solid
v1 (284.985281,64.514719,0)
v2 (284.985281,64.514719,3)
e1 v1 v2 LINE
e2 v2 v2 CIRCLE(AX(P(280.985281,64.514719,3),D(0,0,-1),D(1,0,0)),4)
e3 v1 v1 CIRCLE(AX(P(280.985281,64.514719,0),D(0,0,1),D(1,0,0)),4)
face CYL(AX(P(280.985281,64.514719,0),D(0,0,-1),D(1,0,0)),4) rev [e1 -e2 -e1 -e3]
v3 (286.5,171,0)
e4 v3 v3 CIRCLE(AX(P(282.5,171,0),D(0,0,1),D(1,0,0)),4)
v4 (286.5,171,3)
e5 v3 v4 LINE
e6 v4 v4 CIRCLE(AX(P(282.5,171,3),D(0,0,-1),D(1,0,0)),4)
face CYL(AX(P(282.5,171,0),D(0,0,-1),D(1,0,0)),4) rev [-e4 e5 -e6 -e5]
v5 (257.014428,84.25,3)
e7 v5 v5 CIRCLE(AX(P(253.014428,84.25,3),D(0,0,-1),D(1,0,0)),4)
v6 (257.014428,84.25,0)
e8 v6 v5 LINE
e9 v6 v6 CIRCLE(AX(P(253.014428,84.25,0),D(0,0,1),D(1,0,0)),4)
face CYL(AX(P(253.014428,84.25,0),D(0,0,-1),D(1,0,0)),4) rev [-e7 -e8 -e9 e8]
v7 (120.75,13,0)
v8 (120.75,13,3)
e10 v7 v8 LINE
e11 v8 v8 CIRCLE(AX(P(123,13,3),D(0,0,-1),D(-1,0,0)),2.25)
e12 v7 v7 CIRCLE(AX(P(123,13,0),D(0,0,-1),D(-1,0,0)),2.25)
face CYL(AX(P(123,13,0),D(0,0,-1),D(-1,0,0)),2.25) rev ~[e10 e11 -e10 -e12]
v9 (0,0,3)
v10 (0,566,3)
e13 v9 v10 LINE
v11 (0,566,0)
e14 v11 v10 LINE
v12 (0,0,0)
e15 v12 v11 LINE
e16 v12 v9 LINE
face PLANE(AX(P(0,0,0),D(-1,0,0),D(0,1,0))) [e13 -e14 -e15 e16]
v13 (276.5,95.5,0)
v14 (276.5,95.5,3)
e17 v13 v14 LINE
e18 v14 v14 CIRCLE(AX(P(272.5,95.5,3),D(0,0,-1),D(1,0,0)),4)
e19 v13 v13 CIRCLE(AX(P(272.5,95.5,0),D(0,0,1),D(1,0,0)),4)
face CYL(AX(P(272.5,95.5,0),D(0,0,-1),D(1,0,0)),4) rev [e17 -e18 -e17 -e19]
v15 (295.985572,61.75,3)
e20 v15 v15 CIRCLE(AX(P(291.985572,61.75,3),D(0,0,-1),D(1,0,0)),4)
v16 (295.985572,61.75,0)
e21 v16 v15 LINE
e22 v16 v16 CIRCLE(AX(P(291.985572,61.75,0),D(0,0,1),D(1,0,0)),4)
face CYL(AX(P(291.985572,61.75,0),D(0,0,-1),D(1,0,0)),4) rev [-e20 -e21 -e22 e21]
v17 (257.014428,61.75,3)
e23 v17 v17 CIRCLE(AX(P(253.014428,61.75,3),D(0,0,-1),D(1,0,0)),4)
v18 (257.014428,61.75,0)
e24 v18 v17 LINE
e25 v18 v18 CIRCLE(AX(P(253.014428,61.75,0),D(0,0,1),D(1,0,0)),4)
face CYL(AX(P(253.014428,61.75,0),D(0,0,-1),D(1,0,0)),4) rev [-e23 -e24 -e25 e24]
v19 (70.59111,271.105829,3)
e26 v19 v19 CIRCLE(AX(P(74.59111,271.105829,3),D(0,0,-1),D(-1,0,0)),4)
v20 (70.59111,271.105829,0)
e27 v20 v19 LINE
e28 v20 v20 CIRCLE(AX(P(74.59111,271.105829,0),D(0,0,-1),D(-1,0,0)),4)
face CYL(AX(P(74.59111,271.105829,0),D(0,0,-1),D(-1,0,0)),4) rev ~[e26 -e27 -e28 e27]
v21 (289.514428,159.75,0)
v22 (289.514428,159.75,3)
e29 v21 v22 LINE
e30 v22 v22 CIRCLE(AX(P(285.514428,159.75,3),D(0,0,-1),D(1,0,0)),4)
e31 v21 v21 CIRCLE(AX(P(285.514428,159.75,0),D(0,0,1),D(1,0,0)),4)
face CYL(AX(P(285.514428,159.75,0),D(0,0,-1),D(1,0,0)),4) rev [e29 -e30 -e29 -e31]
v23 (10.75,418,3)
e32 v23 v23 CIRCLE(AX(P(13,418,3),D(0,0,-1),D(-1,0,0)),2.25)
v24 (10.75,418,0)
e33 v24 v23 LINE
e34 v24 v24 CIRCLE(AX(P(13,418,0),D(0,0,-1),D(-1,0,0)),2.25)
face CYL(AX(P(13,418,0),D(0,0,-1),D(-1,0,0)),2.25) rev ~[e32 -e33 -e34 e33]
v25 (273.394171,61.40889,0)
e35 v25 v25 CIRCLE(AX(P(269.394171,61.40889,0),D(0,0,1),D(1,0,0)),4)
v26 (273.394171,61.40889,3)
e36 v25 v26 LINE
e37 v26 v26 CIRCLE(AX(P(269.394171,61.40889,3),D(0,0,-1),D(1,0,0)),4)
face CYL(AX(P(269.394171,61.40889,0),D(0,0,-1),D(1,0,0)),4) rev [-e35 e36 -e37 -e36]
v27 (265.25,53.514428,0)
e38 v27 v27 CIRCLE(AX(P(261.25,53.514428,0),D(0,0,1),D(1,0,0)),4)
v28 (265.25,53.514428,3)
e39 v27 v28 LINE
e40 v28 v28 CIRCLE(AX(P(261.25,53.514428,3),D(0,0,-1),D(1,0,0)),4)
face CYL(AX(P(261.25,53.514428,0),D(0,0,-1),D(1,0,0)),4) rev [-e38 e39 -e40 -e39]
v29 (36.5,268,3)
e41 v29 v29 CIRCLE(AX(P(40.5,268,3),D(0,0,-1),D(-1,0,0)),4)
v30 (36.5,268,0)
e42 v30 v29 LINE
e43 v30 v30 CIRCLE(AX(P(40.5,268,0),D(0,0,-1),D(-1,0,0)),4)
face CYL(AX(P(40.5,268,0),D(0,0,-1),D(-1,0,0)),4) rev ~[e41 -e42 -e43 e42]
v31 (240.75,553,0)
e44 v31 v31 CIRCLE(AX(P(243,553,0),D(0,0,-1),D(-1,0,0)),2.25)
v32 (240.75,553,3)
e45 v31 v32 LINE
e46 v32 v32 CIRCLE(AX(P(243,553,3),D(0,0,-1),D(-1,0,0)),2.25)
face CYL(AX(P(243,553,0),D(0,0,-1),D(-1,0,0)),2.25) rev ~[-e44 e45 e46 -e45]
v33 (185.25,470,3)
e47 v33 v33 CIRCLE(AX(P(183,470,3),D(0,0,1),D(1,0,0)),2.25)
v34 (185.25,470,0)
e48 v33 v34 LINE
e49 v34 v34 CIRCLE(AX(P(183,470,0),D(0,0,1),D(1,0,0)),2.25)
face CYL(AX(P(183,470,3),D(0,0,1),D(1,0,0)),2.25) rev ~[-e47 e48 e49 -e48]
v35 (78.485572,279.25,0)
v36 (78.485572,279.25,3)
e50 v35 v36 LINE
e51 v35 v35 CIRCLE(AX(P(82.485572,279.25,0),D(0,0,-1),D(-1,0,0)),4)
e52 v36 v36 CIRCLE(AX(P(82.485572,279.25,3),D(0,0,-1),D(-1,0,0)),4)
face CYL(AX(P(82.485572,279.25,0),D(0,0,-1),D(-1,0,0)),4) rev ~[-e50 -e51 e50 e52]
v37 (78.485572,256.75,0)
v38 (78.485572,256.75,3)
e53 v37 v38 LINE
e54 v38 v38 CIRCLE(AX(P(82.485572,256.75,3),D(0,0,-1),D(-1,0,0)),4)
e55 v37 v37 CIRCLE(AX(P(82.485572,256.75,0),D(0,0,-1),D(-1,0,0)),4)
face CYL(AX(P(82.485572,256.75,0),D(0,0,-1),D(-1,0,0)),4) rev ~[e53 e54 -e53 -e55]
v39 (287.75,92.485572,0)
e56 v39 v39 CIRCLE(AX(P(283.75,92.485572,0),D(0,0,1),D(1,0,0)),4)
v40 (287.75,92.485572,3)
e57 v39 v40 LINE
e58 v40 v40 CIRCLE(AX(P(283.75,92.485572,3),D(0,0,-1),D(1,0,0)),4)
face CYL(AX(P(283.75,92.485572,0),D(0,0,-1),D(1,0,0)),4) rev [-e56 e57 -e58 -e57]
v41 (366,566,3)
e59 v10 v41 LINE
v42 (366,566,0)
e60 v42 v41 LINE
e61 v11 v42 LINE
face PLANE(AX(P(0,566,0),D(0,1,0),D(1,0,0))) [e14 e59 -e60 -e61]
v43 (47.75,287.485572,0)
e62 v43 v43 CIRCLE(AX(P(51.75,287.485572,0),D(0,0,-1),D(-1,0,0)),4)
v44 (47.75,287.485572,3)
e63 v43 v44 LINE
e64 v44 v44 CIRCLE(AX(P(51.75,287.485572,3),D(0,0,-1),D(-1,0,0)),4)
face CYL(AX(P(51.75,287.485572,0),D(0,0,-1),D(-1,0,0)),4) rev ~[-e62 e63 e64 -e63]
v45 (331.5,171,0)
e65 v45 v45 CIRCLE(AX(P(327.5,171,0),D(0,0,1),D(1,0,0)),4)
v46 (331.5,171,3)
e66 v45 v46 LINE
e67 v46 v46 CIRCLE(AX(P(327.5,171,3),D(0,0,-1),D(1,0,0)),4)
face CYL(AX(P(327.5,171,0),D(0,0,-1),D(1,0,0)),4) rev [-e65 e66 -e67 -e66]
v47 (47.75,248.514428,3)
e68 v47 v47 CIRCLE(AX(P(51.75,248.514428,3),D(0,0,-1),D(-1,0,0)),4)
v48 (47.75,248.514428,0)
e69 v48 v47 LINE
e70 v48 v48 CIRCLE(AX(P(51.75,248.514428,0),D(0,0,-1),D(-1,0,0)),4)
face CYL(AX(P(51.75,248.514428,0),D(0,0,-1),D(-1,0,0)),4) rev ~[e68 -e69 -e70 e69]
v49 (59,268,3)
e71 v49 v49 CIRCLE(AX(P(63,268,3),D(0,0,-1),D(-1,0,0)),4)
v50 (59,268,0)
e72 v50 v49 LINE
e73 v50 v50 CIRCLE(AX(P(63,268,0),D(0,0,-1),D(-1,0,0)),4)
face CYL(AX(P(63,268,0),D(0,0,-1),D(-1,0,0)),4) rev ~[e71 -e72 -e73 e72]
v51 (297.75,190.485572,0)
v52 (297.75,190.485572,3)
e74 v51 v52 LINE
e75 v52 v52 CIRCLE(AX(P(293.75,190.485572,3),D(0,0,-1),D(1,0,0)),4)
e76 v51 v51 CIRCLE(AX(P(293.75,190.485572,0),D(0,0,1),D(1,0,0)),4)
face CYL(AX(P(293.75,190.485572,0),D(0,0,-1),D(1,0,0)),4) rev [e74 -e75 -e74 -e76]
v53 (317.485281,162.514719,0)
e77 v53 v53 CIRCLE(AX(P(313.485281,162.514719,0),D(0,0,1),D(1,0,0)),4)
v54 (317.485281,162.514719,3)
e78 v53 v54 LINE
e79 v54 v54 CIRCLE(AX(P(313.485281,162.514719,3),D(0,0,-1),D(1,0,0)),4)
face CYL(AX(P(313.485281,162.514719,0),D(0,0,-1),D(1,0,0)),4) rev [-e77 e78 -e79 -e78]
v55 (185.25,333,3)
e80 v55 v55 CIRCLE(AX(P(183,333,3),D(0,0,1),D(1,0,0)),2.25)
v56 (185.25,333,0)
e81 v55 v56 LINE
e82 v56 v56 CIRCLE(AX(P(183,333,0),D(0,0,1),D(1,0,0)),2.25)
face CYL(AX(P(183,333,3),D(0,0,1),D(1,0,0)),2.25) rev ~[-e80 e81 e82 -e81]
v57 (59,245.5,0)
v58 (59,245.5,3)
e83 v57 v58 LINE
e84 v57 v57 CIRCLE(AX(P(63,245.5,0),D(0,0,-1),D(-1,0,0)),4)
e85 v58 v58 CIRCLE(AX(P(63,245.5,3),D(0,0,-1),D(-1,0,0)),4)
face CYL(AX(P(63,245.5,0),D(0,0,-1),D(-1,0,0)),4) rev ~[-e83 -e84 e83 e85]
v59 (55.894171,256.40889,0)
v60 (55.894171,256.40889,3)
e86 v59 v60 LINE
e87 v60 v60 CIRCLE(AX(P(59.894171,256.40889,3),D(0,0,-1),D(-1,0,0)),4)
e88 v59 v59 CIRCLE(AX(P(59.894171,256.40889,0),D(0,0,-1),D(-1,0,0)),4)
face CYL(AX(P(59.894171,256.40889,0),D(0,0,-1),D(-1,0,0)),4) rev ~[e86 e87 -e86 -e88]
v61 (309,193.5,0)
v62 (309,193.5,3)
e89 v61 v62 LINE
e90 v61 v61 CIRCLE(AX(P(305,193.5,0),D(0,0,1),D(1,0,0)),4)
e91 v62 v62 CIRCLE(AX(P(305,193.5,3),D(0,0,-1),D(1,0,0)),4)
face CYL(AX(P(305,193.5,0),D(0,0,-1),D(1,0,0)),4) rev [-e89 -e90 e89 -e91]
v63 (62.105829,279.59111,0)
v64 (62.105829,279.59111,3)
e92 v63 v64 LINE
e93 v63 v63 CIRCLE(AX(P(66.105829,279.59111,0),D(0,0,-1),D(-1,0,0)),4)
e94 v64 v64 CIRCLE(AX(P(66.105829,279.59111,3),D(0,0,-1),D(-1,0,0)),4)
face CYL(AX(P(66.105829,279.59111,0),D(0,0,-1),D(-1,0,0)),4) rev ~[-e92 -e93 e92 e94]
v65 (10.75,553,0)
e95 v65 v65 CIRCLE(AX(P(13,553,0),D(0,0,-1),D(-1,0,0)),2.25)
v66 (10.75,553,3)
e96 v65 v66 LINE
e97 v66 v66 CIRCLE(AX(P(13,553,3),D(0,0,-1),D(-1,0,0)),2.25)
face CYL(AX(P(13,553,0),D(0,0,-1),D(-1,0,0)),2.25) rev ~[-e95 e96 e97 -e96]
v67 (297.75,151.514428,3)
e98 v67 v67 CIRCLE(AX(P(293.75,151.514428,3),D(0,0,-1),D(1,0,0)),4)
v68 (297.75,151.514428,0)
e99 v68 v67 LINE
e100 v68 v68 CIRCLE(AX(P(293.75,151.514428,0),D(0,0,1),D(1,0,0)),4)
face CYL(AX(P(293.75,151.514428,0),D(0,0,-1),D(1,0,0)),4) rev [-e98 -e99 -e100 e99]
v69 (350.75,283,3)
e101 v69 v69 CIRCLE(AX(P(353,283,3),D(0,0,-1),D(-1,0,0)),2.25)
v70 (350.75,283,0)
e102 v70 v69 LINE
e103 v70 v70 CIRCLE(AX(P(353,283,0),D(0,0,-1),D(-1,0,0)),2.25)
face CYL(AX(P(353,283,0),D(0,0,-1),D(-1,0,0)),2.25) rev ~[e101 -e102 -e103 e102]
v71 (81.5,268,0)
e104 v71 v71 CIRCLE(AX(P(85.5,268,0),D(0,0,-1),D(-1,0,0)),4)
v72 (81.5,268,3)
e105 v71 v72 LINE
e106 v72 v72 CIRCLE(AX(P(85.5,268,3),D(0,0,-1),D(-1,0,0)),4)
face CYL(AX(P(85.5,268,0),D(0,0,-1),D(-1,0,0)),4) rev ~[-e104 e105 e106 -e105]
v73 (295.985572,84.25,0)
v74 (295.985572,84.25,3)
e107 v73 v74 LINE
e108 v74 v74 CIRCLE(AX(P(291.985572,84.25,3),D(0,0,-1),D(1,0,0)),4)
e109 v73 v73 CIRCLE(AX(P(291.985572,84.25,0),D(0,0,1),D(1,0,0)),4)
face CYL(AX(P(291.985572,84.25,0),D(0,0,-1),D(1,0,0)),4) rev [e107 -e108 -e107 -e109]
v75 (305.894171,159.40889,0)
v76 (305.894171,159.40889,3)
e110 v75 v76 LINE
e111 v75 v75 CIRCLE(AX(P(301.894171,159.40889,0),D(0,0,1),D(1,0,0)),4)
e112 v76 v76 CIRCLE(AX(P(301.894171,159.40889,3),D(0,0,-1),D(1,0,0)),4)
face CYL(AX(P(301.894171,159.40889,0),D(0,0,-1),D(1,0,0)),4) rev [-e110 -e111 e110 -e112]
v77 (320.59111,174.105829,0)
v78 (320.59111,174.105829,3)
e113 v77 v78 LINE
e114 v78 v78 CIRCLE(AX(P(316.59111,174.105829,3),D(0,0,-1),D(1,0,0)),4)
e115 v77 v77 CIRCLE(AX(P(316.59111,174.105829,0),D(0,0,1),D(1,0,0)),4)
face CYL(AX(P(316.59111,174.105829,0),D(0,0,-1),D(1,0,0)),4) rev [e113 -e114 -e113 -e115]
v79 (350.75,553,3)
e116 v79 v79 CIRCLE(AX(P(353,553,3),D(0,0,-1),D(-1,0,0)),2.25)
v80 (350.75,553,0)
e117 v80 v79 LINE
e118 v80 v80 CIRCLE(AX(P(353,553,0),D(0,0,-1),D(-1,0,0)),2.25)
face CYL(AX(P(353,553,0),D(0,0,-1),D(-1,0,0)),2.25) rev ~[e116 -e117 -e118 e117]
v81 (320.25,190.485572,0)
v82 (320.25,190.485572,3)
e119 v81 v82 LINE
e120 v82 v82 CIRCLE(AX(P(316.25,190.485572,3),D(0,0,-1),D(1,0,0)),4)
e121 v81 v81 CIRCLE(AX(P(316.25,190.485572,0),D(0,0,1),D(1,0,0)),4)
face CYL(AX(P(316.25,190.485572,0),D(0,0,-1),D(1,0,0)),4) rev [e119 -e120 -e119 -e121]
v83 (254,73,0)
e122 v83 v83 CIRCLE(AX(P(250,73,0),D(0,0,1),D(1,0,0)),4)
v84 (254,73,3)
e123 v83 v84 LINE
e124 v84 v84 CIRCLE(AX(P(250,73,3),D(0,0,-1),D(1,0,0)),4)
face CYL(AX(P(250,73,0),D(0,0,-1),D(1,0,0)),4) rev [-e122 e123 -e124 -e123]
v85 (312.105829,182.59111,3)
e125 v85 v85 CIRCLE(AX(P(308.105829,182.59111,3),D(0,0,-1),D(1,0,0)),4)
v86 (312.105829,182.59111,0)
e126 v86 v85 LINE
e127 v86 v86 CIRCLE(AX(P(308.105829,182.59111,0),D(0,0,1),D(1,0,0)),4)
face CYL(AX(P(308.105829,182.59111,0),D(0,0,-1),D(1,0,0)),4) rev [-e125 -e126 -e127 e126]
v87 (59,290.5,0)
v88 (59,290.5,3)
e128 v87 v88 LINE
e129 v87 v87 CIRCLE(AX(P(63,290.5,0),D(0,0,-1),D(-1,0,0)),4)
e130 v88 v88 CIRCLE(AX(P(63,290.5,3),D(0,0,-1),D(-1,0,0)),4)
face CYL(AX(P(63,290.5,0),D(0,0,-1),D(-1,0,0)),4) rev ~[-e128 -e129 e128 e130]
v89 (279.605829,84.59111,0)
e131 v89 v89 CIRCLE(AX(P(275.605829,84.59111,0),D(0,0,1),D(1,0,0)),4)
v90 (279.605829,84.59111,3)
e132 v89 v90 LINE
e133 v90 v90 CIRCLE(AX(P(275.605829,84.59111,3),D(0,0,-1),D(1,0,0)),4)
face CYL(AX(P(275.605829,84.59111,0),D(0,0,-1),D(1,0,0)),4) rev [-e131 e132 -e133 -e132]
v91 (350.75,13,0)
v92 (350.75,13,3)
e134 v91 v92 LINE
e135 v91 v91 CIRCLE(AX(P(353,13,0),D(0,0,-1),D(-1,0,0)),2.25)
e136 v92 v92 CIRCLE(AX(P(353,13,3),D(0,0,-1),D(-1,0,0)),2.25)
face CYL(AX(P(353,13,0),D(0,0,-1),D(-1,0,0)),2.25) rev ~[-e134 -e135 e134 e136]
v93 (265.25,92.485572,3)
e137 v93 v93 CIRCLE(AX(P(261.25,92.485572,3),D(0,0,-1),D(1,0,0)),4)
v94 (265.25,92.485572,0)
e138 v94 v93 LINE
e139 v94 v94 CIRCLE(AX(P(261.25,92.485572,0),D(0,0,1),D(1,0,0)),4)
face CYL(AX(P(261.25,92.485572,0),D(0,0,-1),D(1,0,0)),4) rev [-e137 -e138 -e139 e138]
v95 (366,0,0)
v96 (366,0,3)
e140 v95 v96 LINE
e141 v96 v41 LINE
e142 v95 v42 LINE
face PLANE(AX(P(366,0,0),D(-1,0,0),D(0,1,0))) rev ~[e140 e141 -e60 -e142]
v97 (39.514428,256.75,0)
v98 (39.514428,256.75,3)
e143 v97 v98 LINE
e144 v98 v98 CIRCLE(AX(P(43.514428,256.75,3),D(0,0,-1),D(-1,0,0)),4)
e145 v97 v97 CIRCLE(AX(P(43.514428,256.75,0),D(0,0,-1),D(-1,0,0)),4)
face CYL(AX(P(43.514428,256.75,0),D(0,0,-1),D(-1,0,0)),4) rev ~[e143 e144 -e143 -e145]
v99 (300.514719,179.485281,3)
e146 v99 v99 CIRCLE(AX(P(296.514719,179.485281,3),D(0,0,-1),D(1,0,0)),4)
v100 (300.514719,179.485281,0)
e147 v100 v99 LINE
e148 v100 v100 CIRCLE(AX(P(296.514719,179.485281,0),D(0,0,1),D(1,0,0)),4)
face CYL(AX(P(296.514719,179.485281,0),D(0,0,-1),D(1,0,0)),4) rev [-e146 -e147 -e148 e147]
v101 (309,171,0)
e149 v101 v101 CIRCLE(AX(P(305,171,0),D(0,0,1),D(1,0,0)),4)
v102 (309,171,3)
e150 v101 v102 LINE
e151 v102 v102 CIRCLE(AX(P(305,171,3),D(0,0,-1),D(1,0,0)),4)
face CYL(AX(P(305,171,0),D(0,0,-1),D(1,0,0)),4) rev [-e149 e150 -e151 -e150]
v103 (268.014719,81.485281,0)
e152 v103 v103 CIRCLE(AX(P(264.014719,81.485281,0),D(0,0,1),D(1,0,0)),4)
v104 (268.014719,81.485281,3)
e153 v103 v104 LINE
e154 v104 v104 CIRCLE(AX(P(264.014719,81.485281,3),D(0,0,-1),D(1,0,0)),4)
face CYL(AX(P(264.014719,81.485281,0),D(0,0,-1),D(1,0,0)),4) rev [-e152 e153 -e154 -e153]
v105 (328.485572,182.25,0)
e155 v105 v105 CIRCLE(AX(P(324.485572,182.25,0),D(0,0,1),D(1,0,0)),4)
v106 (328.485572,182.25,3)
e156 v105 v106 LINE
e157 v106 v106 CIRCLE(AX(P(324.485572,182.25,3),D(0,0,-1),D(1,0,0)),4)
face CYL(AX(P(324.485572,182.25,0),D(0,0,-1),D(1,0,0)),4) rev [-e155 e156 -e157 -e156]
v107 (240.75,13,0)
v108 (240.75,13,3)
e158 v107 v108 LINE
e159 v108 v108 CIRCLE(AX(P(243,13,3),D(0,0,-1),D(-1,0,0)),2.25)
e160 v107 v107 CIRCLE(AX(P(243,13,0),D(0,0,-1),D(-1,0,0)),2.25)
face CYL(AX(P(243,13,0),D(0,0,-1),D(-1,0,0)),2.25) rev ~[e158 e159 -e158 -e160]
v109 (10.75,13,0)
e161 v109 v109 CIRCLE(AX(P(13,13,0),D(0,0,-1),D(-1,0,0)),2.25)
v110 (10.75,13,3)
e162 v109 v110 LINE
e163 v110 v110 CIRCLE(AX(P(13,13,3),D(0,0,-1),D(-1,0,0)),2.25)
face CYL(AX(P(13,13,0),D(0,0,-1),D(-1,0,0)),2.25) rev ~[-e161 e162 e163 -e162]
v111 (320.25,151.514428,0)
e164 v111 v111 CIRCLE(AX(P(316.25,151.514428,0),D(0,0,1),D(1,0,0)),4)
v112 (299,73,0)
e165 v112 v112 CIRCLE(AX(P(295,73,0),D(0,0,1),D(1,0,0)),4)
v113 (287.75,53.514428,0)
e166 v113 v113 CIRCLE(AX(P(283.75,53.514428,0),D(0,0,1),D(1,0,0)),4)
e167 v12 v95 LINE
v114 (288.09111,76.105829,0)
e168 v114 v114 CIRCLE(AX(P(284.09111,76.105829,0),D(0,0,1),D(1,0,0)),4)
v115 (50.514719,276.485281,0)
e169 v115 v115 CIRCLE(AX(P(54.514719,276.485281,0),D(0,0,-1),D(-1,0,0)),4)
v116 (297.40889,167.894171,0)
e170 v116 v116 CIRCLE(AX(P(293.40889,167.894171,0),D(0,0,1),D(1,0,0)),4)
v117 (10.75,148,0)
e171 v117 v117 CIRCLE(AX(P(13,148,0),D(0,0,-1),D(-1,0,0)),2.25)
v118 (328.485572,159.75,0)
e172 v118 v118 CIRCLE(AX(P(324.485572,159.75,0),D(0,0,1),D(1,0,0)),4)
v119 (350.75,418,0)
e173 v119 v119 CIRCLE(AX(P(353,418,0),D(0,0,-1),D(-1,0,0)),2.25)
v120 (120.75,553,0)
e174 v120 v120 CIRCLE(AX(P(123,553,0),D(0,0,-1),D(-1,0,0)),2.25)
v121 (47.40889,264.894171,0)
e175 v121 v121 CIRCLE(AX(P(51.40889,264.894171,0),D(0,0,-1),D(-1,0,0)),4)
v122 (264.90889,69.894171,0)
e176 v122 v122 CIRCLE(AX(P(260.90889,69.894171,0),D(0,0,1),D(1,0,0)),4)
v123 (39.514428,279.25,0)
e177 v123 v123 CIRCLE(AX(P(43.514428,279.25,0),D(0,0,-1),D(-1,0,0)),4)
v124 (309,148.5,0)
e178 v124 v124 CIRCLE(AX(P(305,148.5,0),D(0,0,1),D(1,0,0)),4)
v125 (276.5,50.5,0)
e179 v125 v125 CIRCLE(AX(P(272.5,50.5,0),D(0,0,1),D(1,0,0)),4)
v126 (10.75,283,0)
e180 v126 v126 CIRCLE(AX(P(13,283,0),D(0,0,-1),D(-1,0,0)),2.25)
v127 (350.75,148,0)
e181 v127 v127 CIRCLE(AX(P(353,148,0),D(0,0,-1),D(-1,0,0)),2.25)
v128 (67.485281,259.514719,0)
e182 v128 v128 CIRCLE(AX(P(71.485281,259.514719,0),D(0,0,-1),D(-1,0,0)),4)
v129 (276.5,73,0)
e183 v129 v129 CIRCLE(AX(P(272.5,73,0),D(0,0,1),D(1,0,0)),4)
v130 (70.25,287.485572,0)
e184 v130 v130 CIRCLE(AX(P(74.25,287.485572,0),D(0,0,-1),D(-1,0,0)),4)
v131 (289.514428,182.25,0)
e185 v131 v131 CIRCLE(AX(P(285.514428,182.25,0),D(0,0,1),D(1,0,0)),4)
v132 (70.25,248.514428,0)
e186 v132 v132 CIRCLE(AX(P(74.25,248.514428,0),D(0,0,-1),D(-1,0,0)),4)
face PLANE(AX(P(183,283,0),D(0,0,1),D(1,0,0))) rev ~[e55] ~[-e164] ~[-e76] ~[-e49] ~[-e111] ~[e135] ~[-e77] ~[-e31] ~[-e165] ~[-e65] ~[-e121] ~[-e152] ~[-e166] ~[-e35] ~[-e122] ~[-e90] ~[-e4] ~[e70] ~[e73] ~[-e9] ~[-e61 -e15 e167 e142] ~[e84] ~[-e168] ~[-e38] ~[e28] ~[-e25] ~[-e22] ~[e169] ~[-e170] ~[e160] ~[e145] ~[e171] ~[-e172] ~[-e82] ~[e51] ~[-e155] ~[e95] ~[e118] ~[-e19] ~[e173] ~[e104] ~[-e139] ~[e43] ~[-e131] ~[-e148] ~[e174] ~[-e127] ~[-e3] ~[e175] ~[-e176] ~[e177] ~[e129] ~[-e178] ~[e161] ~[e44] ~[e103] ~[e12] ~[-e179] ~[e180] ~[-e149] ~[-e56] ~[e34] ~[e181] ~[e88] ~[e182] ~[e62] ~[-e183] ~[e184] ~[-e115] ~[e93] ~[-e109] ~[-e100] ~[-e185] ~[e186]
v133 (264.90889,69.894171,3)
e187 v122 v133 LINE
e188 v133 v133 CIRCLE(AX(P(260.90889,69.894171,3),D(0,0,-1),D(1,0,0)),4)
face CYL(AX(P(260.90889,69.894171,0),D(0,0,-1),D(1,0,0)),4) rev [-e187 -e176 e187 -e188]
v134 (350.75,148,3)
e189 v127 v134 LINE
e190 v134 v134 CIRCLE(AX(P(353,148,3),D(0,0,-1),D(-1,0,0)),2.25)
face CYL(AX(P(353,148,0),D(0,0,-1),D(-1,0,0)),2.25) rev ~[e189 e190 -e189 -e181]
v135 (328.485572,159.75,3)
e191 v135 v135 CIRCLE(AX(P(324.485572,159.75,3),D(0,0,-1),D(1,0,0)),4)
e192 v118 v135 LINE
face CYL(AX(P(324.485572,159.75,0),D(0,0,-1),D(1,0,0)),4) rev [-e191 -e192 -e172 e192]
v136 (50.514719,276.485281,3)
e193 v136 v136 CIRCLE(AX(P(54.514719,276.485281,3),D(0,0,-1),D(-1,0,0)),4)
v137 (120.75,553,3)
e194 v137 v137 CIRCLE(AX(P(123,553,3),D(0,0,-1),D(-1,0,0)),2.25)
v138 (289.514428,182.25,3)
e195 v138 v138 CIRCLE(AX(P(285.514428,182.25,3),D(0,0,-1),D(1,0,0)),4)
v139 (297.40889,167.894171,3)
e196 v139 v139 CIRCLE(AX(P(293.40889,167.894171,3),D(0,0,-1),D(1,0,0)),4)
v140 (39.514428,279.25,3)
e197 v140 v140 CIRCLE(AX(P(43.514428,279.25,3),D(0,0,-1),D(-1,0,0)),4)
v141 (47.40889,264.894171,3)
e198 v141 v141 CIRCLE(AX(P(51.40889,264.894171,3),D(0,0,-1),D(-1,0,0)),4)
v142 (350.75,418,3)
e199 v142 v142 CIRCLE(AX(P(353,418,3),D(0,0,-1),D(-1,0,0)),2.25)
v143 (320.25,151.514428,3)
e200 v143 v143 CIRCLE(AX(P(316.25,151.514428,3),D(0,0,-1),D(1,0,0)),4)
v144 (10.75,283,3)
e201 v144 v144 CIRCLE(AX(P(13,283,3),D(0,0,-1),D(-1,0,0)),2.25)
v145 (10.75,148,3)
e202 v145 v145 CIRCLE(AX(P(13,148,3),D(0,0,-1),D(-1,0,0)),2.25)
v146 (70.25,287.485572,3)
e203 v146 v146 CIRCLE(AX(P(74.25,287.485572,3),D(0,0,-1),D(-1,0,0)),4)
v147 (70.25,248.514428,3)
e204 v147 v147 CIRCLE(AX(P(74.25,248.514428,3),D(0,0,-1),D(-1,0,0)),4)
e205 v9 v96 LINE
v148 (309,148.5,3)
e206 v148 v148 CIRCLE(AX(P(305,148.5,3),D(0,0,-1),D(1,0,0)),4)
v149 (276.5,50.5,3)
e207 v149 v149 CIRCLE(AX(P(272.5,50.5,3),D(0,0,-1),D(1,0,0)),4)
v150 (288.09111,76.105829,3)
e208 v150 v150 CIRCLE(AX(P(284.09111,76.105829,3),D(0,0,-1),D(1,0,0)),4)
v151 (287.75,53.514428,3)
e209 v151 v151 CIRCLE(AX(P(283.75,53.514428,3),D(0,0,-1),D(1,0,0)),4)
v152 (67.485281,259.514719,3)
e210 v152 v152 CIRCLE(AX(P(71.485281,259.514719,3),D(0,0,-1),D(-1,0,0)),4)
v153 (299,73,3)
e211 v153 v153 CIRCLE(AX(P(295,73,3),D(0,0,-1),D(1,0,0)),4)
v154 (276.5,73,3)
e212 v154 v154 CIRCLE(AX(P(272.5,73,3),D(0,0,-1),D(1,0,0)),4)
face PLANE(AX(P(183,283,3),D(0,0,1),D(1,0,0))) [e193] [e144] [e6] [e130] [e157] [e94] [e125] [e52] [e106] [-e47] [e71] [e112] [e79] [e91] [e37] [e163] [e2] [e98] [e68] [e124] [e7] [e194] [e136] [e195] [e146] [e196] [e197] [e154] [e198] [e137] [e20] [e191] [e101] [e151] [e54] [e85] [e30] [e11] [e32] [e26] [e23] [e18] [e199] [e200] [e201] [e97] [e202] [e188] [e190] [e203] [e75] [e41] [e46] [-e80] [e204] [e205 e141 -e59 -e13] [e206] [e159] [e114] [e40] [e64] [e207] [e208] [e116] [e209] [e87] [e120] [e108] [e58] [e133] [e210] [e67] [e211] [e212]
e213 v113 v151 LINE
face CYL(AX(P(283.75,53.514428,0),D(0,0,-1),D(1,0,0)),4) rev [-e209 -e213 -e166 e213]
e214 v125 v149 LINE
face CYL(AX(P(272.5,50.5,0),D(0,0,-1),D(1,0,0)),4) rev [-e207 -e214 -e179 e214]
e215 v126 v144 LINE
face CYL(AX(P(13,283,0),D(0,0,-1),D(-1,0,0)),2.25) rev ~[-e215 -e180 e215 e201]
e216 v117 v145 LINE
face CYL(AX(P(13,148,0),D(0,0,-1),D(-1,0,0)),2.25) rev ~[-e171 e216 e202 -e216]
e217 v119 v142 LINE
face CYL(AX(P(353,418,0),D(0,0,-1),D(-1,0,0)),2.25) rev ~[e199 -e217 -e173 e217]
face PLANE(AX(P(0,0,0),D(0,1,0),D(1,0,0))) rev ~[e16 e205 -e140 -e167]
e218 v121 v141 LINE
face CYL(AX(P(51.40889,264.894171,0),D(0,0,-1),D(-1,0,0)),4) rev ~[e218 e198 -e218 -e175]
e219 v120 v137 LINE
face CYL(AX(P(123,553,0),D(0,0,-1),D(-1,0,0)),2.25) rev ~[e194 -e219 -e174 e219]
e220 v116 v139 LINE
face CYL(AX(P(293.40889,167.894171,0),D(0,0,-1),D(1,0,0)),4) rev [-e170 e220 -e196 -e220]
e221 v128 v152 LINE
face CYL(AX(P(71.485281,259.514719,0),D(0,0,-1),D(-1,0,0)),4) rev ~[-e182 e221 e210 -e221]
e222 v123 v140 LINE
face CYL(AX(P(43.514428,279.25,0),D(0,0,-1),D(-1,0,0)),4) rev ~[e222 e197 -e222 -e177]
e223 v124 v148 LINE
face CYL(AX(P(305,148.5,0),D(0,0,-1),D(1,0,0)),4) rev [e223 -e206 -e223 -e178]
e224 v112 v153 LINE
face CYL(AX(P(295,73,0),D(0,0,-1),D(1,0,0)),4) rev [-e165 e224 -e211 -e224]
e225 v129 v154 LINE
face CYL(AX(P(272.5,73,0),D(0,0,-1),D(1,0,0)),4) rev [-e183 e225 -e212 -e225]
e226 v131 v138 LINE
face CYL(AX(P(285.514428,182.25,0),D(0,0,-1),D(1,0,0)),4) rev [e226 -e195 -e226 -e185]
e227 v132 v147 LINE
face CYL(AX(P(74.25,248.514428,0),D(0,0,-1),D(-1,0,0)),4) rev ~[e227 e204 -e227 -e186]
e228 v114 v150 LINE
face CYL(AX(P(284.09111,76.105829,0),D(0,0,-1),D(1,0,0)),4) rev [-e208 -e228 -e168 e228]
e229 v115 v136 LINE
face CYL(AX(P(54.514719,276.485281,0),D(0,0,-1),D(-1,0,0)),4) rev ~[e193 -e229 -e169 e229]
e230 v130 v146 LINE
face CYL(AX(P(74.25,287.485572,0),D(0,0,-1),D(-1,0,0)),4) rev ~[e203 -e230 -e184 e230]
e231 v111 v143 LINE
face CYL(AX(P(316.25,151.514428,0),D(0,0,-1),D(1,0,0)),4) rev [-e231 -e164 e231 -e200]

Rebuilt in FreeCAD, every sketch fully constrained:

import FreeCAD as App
import Part
import Sketcher
Q = App.Units.Quantity

doc = App.newDocument("Part")
body = doc.addObject("PartDesign::Body", "Body")

# Sketch on XY plane
sketch1 = body.newObject("Sketcher::SketchObject", "Sketch")
sketch1.AttachmentSupport = (doc.getObject("XY_Plane"), [""])
sketch1.MapMode = "FlatFace"
sketch1.addGeometry([
    Part.LineSegment(App.Vector(0, 566, 0), App.Vector(0, 0, 0)),
    Part.LineSegment(App.Vector(0, 0, 0), App.Vector(366, 0, 0)),
    Part.LineSegment(App.Vector(366, 0, 0), App.Vector(366, 566, 0)),
    Part.LineSegment(App.Vector(366, 566, 0), App.Vector(0, 566, 0)),
], False)
sketch1.addConstraint([
    Sketcher.Constraint("Coincident", 0, 2, 1, 1),
    Sketcher.Constraint("Coincident", 1, 2, 2, 1),
    Sketcher.Constraint("Coincident", 2, 2, 3, 1),
    Sketcher.Constraint("Coincident", 3, 2, 0, 1),
    Sketcher.Constraint("Vertical", 0),
    Sketcher.Constraint("Horizontal", 1),
    Sketcher.Constraint("Vertical", 2),
    Sketcher.Constraint("Horizontal", 3),
    Sketcher.Constraint("Coincident", 0, 2, -1, 1),
    Sketcher.Constraint("DistanceX", 1, 1, 1, 2, Q("366 mm")),
    Sketcher.Constraint("DistanceY", 0, 2, 0, 1, Q("566 mm")),
])
pad1 = body.newObject("PartDesign::Pad", "Pad")
pad1.Profile = sketch1
pad1.Length = 3

# Sketch on XY plane
sketch2 = body.newObject("Sketcher::SketchObject", "Sketch001")
sketch2.AttachmentSupport = (doc.getObject("XY_Plane"), [""])
sketch2.MapMode = "FlatFace"
sketch2.addGeometry([
    Part.Circle(App.Vector(353, 553, 0), App.Vector(0, 0, 1), 2.2),  # 0
    Part.Circle(App.Vector(13, 553, 0), App.Vector(0, 0, 1), 2.2),  # 1
    Part.Circle(App.Vector(243, 553, 0), App.Vector(0, 0, 1), 2.2),  # 2
    Part.Circle(App.Vector(123, 553, 0), App.Vector(0, 0, 1), 2.2),  # 3
    Part.Circle(App.Vector(353, 418, 0), App.Vector(0, 0, 1), 2.2),  # 4
    Part.Circle(App.Vector(353, 283, 0), App.Vector(0, 0, 1), 2.2),  # 5
    Part.Circle(App.Vector(353, 148, 0), App.Vector(0, 0, 1), 2.2),  # 6
    Part.Circle(App.Vector(353, 13, 0), App.Vector(0, 0, 1), 2.2),  # 7
    Part.Circle(App.Vector(123, 13, 0), App.Vector(0, 0, 1), 2.2),  # 8
    Part.Circle(App.Vector(243, 13, 0), App.Vector(0, 0, 1), 2.2),  # 9
    Part.Circle(App.Vector(13, 418, 0), App.Vector(0, 0, 1), 2.2),  # 10
    Part.Circle(App.Vector(13, 283, 0), App.Vector(0, 0, 1), 2.2),  # 11
    Part.Circle(App.Vector(13, 148, 0), App.Vector(0, 0, 1), 2.2),  # 12
    Part.Circle(App.Vector(13, 13, 0), App.Vector(0, 0, 1), 2.2),  # 13
], False)
sketch2.addConstraint([
    Sketcher.Constraint("Equal", 0, 1),
    Sketcher.Constraint("Equal", 1, 2),
    Sketcher.Constraint("Equal", 2, 3),
    Sketcher.Constraint("Equal", 3, 4),
    Sketcher.Constraint("Equal", 4, 5),
    Sketcher.Constraint("Equal", 5, 6),
    Sketcher.Constraint("Equal", 6, 7),
    Sketcher.Constraint("Equal", 7, 8),
    Sketcher.Constraint("Equal", 8, 9),
    Sketcher.Constraint("Equal", 9, 10),
    Sketcher.Constraint("Equal", 10, 11),
    Sketcher.Constraint("Equal", 11, 12),
    Sketcher.Constraint("Equal", 12, 13),
    Sketcher.Constraint("Horizontal", 0, 3, 1, 3),
    Sketcher.Constraint("Horizontal", 1, 3, 2, 3),
    Sketcher.Constraint("Horizontal", 2, 3, 3, 3),
    Sketcher.Constraint("Horizontal", 7, 3, 8, 3),
    Sketcher.Constraint("Horizontal", 8, 3, 9, 3),
    Sketcher.Constraint("Horizontal", 4, 3, 10, 3),
    Sketcher.Constraint("Horizontal", 5, 3, 11, 3),
    Sketcher.Constraint("Horizontal", 6, 3, 12, 3),
    Sketcher.Constraint("Horizontal", 9, 3, 13, 3),
    Sketcher.Constraint("Vertical", 0, 3, 4, 3),
    Sketcher.Constraint("Vertical", 4, 3, 5, 3),
    Sketcher.Constraint("Vertical", 5, 3, 6, 3),
    Sketcher.Constraint("Vertical", 6, 3, 7, 3),
    Sketcher.Constraint("Vertical", 3, 3, 8, 3),
    Sketcher.Constraint("Vertical", 2, 3, 9, 3),
    Sketcher.Constraint("Vertical", 1, 3, 10, 3),
    Sketcher.Constraint("Vertical", 10, 3, 11, 3),
    Sketcher.Constraint("Vertical", 11, 3, 12, 3),
    Sketcher.Constraint("Vertical", 12, 3, 13, 3),
    Sketcher.Constraint("Diameter", 0, Q("4.5 mm")),
    Sketcher.Constraint("DistanceX", -1, 1, 0, 3, Q("353 mm")),
    Sketcher.Constraint("DistanceY", -1, 1, 0, 3, Q("553 mm")),
    Sketcher.Constraint("DistanceX", -1, 1, 1, 3, Q("13 mm")),
    Sketcher.Constraint("DistanceX", -1, 1, 2, 3, Q("243 mm")),
    Sketcher.Constraint("DistanceX", -1, 1, 3, 3, Q("123 mm")),
    Sketcher.Constraint("DistanceY", -1, 1, 4, 3, Q("418 mm")),
    Sketcher.Constraint("DistanceY", -1, 1, 5, 3, Q("283 mm")),
    Sketcher.Constraint("DistanceY", -1, 1, 6, 3, Q("148 mm")),
    Sketcher.Constraint("DistanceY", -1, 1, 7, 3, Q("13 mm")),
])
pocket1 = body.newObject("PartDesign::Pocket", "Pocket")
pocket1.Profile = sketch2
pocket1.Type = "ThroughAll"
pocket1.Reversed = True

# Sketch on XY plane
sketch3 = body.newObject("Sketcher::SketchObject", "Sketch002")
sketch3.AttachmentSupport = (doc.getObject("XY_Plane"), [""])
sketch3.MapMode = "FlatFace"
sketch3.addGeometry([
    Part.Circle(App.Vector(305, 148.5, 0), App.Vector(0, 0, 1), 4),  # 0
    Part.Circle(App.Vector(313.5, 162.5, 0), App.Vector(0, 0, 1), 4),  # 1
    Part.Circle(App.Vector(305, 171, 0), App.Vector(0, 0, 1), 4),  # 2
    Part.Circle(App.Vector(293.8, 151.5, 0), App.Vector(0, 0, 1), 4),  # 3
    Part.Circle(App.Vector(285.5, 159.8, 0), App.Vector(0, 0, 1), 4),  # 4
    Part.Circle(App.Vector(282.5, 171, 0), App.Vector(0, 0, 1), 4),  # 5
    Part.Circle(App.Vector(285.5, 182.2, 0), App.Vector(0, 0, 1), 4),  # 6
    Part.Circle(App.Vector(293.8, 190.5, 0), App.Vector(0, 0, 1), 4),  # 7
    Part.Circle(App.Vector(305, 193.5, 0), App.Vector(0, 0, 1), 4),  # 8
    Part.Circle(App.Vector(316.2, 190.5, 0), App.Vector(0, 0, 1), 4),  # 9
    Part.Circle(App.Vector(324.5, 182.2, 0), App.Vector(0, 0, 1), 4),  # 10
    Part.Circle(App.Vector(327.5, 171, 0), App.Vector(0, 0, 1), 4),  # 11
    Part.Circle(App.Vector(324.5, 159.8, 0), App.Vector(0, 0, 1), 4),  # 12
    Part.Circle(App.Vector(316.2, 151.5, 0), App.Vector(0, 0, 1), 4),  # 13
    Part.Circle(App.Vector(301.9, 159.4, 0), App.Vector(0, 0, 1), 4),  # 14
    Part.Circle(App.Vector(293.4, 167.9, 0), App.Vector(0, 0, 1), 4),  # 15
    Part.Circle(App.Vector(296.5, 179.5, 0), App.Vector(0, 0, 1), 4),  # 16
    Part.Circle(App.Vector(308.1, 182.6, 0), App.Vector(0, 0, 1), 4),  # 17
    Part.Circle(App.Vector(316.6, 174.1, 0), App.Vector(0, 0, 1), 4),  # 18
    Part.Circle(App.Vector(272.5, 73, 0), App.Vector(0, 0, 1), 4),  # 19
    Part.Circle(App.Vector(272.5, 50.5, 0), App.Vector(0, 0, 1), 4),  # 20
    Part.Circle(App.Vector(281, 64.5, 0), App.Vector(0, 0, 1), 4),  # 21
    Part.Circle(App.Vector(261.2, 53.5, 0), App.Vector(0, 0, 1), 4),  # 22
    Part.Circle(App.Vector(253, 61.8, 0), App.Vector(0, 0, 1), 4),  # 23
    Part.Circle(App.Vector(250, 73, 0), App.Vector(0, 0, 1), 4),  # 24
    Part.Circle(App.Vector(253, 84.2, 0), App.Vector(0, 0, 1), 4),  # 25
    Part.Circle(App.Vector(261.2, 92.5, 0), App.Vector(0, 0, 1), 4),  # 26
    Part.Circle(App.Vector(272.5, 95.5, 0), App.Vector(0, 0, 1), 4),  # 27
    Part.Circle(App.Vector(283.8, 92.5, 0), App.Vector(0, 0, 1), 4),  # 28
    Part.Circle(App.Vector(292, 84.2, 0), App.Vector(0, 0, 1), 4),  # 29
    Part.Circle(App.Vector(295, 73, 0), App.Vector(0, 0, 1), 4),  # 30
    Part.Circle(App.Vector(292, 61.8, 0), App.Vector(0, 0, 1), 4),  # 31
    Part.Circle(App.Vector(283.8, 53.5, 0), App.Vector(0, 0, 1), 4),  # 32
    Part.Circle(App.Vector(269.4, 61.4, 0), App.Vector(0, 0, 1), 4),  # 33
    Part.Circle(App.Vector(260.9, 69.9, 0), App.Vector(0, 0, 1), 4),  # 34
    Part.Circle(App.Vector(264, 81.5, 0), App.Vector(0, 0, 1), 4),  # 35
    Part.Circle(App.Vector(275.6, 84.6, 0), App.Vector(0, 0, 1), 4),  # 36
    Part.Circle(App.Vector(284.1, 76.1, 0), App.Vector(0, 0, 1), 4),  # 37
], False)
sketch3.addConstraint([
    Sketcher.Constraint("Equal", 0, 1),
    Sketcher.Constraint("Equal", 1, 2),
    Sketcher.Constraint("Equal", 2, 3),
    Sketcher.Constraint("Equal", 3, 4),
    Sketcher.Constraint("Equal", 4, 5),
    Sketcher.Constraint("Equal", 5, 6),
    Sketcher.Constraint("Equal", 6, 7),
    Sketcher.Constraint("Equal", 7, 8),
    Sketcher.Constraint("Equal", 8, 9),
    Sketcher.Constraint("Equal", 9, 10),
    Sketcher.Constraint("Equal", 10, 11),
    Sketcher.Constraint("Equal", 11, 12),
    Sketcher.Constraint("Equal", 12, 13),
    Sketcher.Constraint("Equal", 13, 14),
    Sketcher.Constraint("Equal", 14, 15),
    Sketcher.Constraint("Equal", 15, 16),
    Sketcher.Constraint("Equal", 16, 17),
    Sketcher.Constraint("Equal", 17, 18),
    Sketcher.Constraint("Equal", 18, 19),
    Sketcher.Constraint("Equal", 19, 20),
    Sketcher.Constraint("Equal", 20, 21),
    Sketcher.Constraint("Equal", 21, 22),
    Sketcher.Constraint("Equal", 22, 23),
    Sketcher.Constraint("Equal", 23, 24),
    Sketcher.Constraint("Equal", 24, 25),
    Sketcher.Constraint("Equal", 25, 26),
    Sketcher.Constraint("Equal", 26, 27),
    Sketcher.Constraint("Equal", 27, 28),
    Sketcher.Constraint("Equal", 28, 29),
    Sketcher.Constraint("Equal", 29, 30),
    Sketcher.Constraint("Equal", 30, 31),
    Sketcher.Constraint("Equal", 31, 32),
    Sketcher.Constraint("Equal", 32, 33),
    Sketcher.Constraint("Equal", 33, 34),
    Sketcher.Constraint("Equal", 34, 35),
    Sketcher.Constraint("Equal", 35, 36),
    Sketcher.Constraint("Equal", 36, 37),
    Sketcher.Constraint("Horizontal", 2, 3, 5, 3),
    Sketcher.Constraint("Horizontal", 7, 3, 9, 3),
    Sketcher.Constraint("Horizontal", 6, 3, 10, 3),
    Sketcher.Constraint("Horizontal", 5, 3, 11, 3),
    Sketcher.Constraint("Horizontal", 4, 3, 12, 3),
    Sketcher.Constraint("Horizontal", 3, 3, 13, 3),
    Sketcher.Constraint("Horizontal", 19, 3, 24, 3),
    Sketcher.Constraint("Horizontal", 26, 3, 28, 3),
    Sketcher.Constraint("Horizontal", 25, 3, 29, 3),
    Sketcher.Constraint("Horizontal", 24, 3, 30, 3),
    Sketcher.Constraint("Horizontal", 23, 3, 31, 3),
    Sketcher.Constraint("Horizontal", 22, 3, 32, 3),
    Sketcher.Constraint("Vertical", 0, 3, 2, 3),
    Sketcher.Constraint("Vertical", 4, 3, 6, 3),
    Sketcher.Constraint("Vertical", 3, 3, 7, 3),
    Sketcher.Constraint("Vertical", 2, 3, 8, 3),
    Sketcher.Constraint("Vertical", 10, 3, 12, 3),
    Sketcher.Constraint("Vertical", 9, 3, 13, 3),
    Sketcher.Constraint("Vertical", 19, 3, 20, 3),
    Sketcher.Constraint("Vertical", 23, 3, 25, 3),
    Sketcher.Constraint("Vertical", 22, 3, 26, 3),
    Sketcher.Constraint("Vertical", 20, 3, 27, 3),
    Sketcher.Constraint("Vertical", 29, 3, 31, 3),
    Sketcher.Constraint("Vertical", 28, 3, 32, 3),
    Sketcher.Constraint("Diameter", 0, Q("8 mm")),
    Sketcher.Constraint("DistanceX", -1, 1, 0, 3, Q("305 mm")),
    Sketcher.Constraint("DistanceY", -1, 1, 2, 3, Q("171 mm")),
    Sketcher.Constraint("DistanceY", -1, 1, 19, 3, Q("73 mm")),
    Sketcher.Constraint("DistanceX", -1, 1, 24, 3, Q("250 mm")),
    Sketcher.Constraint("DistanceX", -1, 1, 30, 3, Q("295 mm")),
    Sketcher.Constraint("DistanceY", 20, 3, 0, 3, Q("98 mm")),
    Sketcher.Constraint("DistanceY", 22, 3, 3, 3, Q("98 mm")),
    Sketcher.Constraint("DistanceY", -1, 1, 0, 3, Q("148.5 mm")),
    Sketcher.Constraint("DistanceX", -1, 1, 5, 3, Q("282.5 mm")),
    Sketcher.Constraint("DistanceY", -1, 1, 8, 3, Q("193.5 mm")),
    Sketcher.Constraint("DistanceX", -1, 1, 11, 3, Q("327.5 mm")),
    Sketcher.Constraint("DistanceX", -1, 1, 19, 3, Q("272.5 mm")),
    Sketcher.Constraint("DistanceY", -1, 1, 27, 3, Q("95.5 mm")),
    Sketcher.Constraint("DistanceY", 4, 3, 6, 3, Q("22.5 mm")),
    Sketcher.Constraint("DistanceX", 7, 3, 9, 3, Q("22.5 mm")),
    Sketcher.Constraint("DistanceX", 22, 3, 3, 3, Q("32.5 mm")),
    Sketcher.Constraint("DistanceY", 23, 3, 25, 3, Q("22.5 mm")),
    Sketcher.Constraint("DistanceX", 26, 3, 28, 3, Q("22.5 mm")),
    Sketcher.Constraint("DistanceX", -1, 1, 3, 3, Q("293.75 mm")),
    Sketcher.Constraint("DistanceY", -1, 1, 4, 3, Q("159.75 mm")),
    Sketcher.Constraint("DistanceY", -1, 1, 23, 3, Q("61.75 mm")),
    Sketcher.Constraint("DistanceX", -1, 1, 1, 3, Q("313.485281 mm")),
    Sketcher.Constraint("DistanceY", -1, 1, 1, 3, Q("162.514719 mm")),
    Sketcher.Constraint("DistanceY", -1, 1, 3, 3, Q("151.514428 mm")),
    Sketcher.Constraint("DistanceX", -1, 1, 4, 3, Q("285.514428 mm")),
    Sketcher.Constraint("DistanceY", -1, 1, 7, 3, Q("190.485572 mm")),
    Sketcher.Constraint("DistanceX", -1, 1, 10, 3, Q("324.485572 mm")),
    Sketcher.Constraint("DistanceX", -1, 1, 14, 3, Q("301.894171 mm")),
    Sketcher.Constraint("DistanceY", -1, 1, 14, 3, Q("159.40889 mm")),
    Sketcher.Constraint("DistanceX", -1, 1, 15, 3, Q("293.40889 mm")),
    Sketcher.Constraint("DistanceY", -1, 1, 15, 3, Q("167.894171 mm")),
    Sketcher.Constraint("DistanceX", -1, 1, 16, 3, Q("296.514719 mm")),
    Sketcher.Constraint("DistanceY", -1, 1, 16, 3, Q("179.485281 mm")),
    Sketcher.Constraint("DistanceX", -1, 1, 17, 3, Q("308.105829 mm")),
    Sketcher.Constraint("DistanceY", -1, 1, 17, 3, Q("182.59111 mm")),
    Sketcher.Constraint("DistanceX", -1, 1, 18, 3, Q("316.59111 mm")),
    Sketcher.Constraint("DistanceY", -1, 1, 18, 3, Q("174.105829 mm")),
    Sketcher.Constraint("DistanceX", -1, 1, 21, 3, Q("280.985281 mm")),
    Sketcher.Constraint("DistanceY", -1, 1, 21, 3, Q("64.514719 mm")),
    Sketcher.Constraint("DistanceX", -1, 1, 23, 3, Q("253.014428 mm")),
    Sketcher.Constraint("DistanceY", -1, 1, 26, 3, Q("92.485572 mm")),
    Sketcher.Constraint("DistanceX", -1, 1, 29, 3, Q("291.985572 mm")),
    Sketcher.Constraint("DistanceX", -1, 1, 33, 3, Q("269.394171 mm")),
    Sketcher.Constraint("DistanceY", -1, 1, 33, 3, Q("61.40889 mm")),
    Sketcher.Constraint("DistanceX", -1, 1, 34, 3, Q("260.90889 mm")),
    Sketcher.Constraint("DistanceY", -1, 1, 34, 3, Q("69.894171 mm")),
    Sketcher.Constraint("DistanceX", -1, 1, 35, 3, Q("264.014719 mm")),
    Sketcher.Constraint("DistanceY", -1, 1, 35, 3, Q("81.485281 mm")),
    Sketcher.Constraint("DistanceX", -1, 1, 36, 3, Q("275.605829 mm")),
    Sketcher.Constraint("DistanceY", -1, 1, 36, 3, Q("84.59111 mm")),
    Sketcher.Constraint("DistanceX", -1, 1, 37, 3, Q("284.09111 mm")),
    Sketcher.Constraint("DistanceY", -1, 1, 37, 3, Q("76.105829 mm")),
])
pocket2 = body.newObject("PartDesign::Pocket", "Pocket001")
pocket2.Profile = sketch3
pocket2.Type = "ThroughAll"
pocket2.Midplane = True

# Sketch on XY plane
sketch4 = body.newObject("Sketcher::SketchObject", "Sketch003")
sketch4.AttachmentSupport = (doc.getObject("XY_Plane"), [""])
sketch4.MapMode = "FlatFace"
sketch4.AttachmentOffset = App.Placement(App.Vector(0, 0, 3), App.Rotation())
sketch4.addGeometry([
    Part.Circle(App.Vector(183, 470, 0), App.Vector(0, 0, 1), 2.2),
    Part.Circle(App.Vector(183, 333, 0), App.Vector(0, 0, 1), 2.2),
], False)
sketch4.addConstraint([
    Sketcher.Constraint("Equal", 0, 1),
    Sketcher.Constraint("Vertical", 0, 3, 1, 3),
    Sketcher.Constraint("Diameter", 0, Q("4.5 mm")),
    Sketcher.Constraint("DistanceX", -1, 1, 0, 3, Q("183 mm")),
    Sketcher.Constraint("DistanceY", -1, 1, 0, 3, Q("470 mm")),
    Sketcher.Constraint("DistanceY", -1, 1, 1, 3, Q("333 mm")),
])
pocket3 = body.newObject("PartDesign::Pocket", "Pocket002")
pocket3.Profile = sketch4
pocket3.Type = "ThroughAll"

# Sketch on XY plane
sketch5 = body.newObject("Sketcher::SketchObject", "Sketch004")
sketch5.AttachmentSupport = (doc.getObject("XY_Plane"), [""])
sketch5.MapMode = "FlatFace"
sketch5.addGeometry([
    Part.Circle(App.Vector(63, 268, 0), App.Vector(0, 0, 1), 4),  # 0
    Part.Circle(App.Vector(63, 245.5, 0), App.Vector(0, 0, 1), 4),  # 1
    Part.Circle(App.Vector(71.5, 259.5, 0), App.Vector(0, 0, 1), 4),  # 2
    Part.Circle(App.Vector(74.2, 248.5, 0), App.Vector(0, 0, 1), 4),  # 3
    Part.Circle(App.Vector(82.5, 256.8, 0), App.Vector(0, 0, 1), 4),  # 4
    Part.Circle(App.Vector(85.5, 268, 0), App.Vector(0, 0, 1), 4),  # 5
    Part.Circle(App.Vector(82.5, 279.2, 0), App.Vector(0, 0, 1), 4),  # 6
    Part.Circle(App.Vector(74.2, 287.5, 0), App.Vector(0, 0, 1), 4),  # 7
    Part.Circle(App.Vector(63, 290.5, 0), App.Vector(0, 0, 1), 4),  # 8
    Part.Circle(App.Vector(51.8, 287.5, 0), App.Vector(0, 0, 1), 4),  # 9
    Part.Circle(App.Vector(43.5, 279.2, 0), App.Vector(0, 0, 1), 4),  # 10
    Part.Circle(App.Vector(40.5, 268, 0), App.Vector(0, 0, 1), 4),  # 11
    Part.Circle(App.Vector(43.5, 256.8, 0), App.Vector(0, 0, 1), 4),  # 12
    Part.Circle(App.Vector(51.8, 248.5, 0), App.Vector(0, 0, 1), 4),  # 13
    Part.Circle(App.Vector(74.6, 271.1, 0), App.Vector(0, 0, 1), 4),  # 14
    Part.Circle(App.Vector(66.1, 279.6, 0), App.Vector(0, 0, 1), 4),  # 15
    Part.Circle(App.Vector(54.5, 276.5, 0), App.Vector(0, 0, 1), 4),  # 16
    Part.Circle(App.Vector(51.4, 264.9, 0), App.Vector(0, 0, 1), 4),  # 17
    Part.Circle(App.Vector(59.9, 256.4, 0), App.Vector(0, 0, 1), 4),  # 18
], False)
sketch5.addConstraint([
    Sketcher.Constraint("Equal", 0, 1),
    Sketcher.Constraint("Equal", 1, 2),
    Sketcher.Constraint("Equal", 2, 3),
    Sketcher.Constraint("Equal", 3, 4),
    Sketcher.Constraint("Equal", 4, 5),
    Sketcher.Constraint("Equal", 5, 6),
    Sketcher.Constraint("Equal", 6, 7),
    Sketcher.Constraint("Equal", 7, 8),
    Sketcher.Constraint("Equal", 8, 9),
    Sketcher.Constraint("Equal", 9, 10),
    Sketcher.Constraint("Equal", 10, 11),
    Sketcher.Constraint("Equal", 11, 12),
    Sketcher.Constraint("Equal", 12, 13),
    Sketcher.Constraint("Equal", 13, 14),
    Sketcher.Constraint("Equal", 14, 15),
    Sketcher.Constraint("Equal", 15, 16),
    Sketcher.Constraint("Equal", 16, 17),
    Sketcher.Constraint("Equal", 17, 18),
    Sketcher.Constraint("Horizontal", 0, 3, 5, 3),
    Sketcher.Constraint("Horizontal", 7, 3, 9, 3),
    Sketcher.Constraint("Horizontal", 6, 3, 10, 3),
    Sketcher.Constraint("Horizontal", 5, 3, 11, 3),
    Sketcher.Constraint("Horizontal", 4, 3, 12, 3),
    Sketcher.Constraint("Horizontal", 3, 3, 13, 3),
    Sketcher.Constraint("Vertical", 0, 3, 1, 3),
    Sketcher.Constraint("Vertical", 4, 3, 6, 3),
    Sketcher.Constraint("Vertical", 3, 3, 7, 3),
    Sketcher.Constraint("Vertical", 1, 3, 8, 3),
    Sketcher.Constraint("Vertical", 10, 3, 12, 3),
    Sketcher.Constraint("Vertical", 9, 3, 13, 3),
    Sketcher.Constraint("Diameter", 0, Q("8 mm")),
    Sketcher.Constraint("DistanceX", -1, 1, 0, 3, Q("63 mm")),
    Sketcher.Constraint("DistanceY", -1, 1, 0, 3, Q("268 mm")),
    Sketcher.Constraint("DistanceY", -1, 1, 1, 3, Q("245.5 mm")),
    Sketcher.Constraint("DistanceX", -1, 1, 5, 3, Q("85.5 mm")),
    Sketcher.Constraint("DistanceY", -1, 1, 8, 3, Q("290.5 mm")),
    Sketcher.Constraint("DistanceX", -1, 1, 11, 3, Q("40.5 mm")),
    Sketcher.Constraint("DistanceY", 4, 3, 6, 3, Q("22.5 mm")),
    Sketcher.Constraint("DistanceX", 9, 3, 7, 3, Q("22.5 mm")),
    Sketcher.Constraint("DistanceX", -1, 1, 3, 3, Q("74.25 mm")),
    Sketcher.Constraint("DistanceY", -1, 1, 4, 3, Q("256.75 mm")),
    Sketcher.Constraint("DistanceX", -1, 1, 2, 3, Q("71.485281 mm")),
    Sketcher.Constraint("DistanceY", -1, 1, 2, 3, Q("259.514719 mm")),
    Sketcher.Constraint("DistanceY", -1, 1, 3, 3, Q("248.514428 mm")),
    Sketcher.Constraint("DistanceX", -1, 1, 4, 3, Q("82.485572 mm")),
    Sketcher.Constraint("DistanceY", -1, 1, 7, 3, Q("287.485572 mm")),
    Sketcher.Constraint("DistanceX", -1, 1, 10, 3, Q("43.514428 mm")),
    Sketcher.Constraint("DistanceX", -1, 1, 14, 3, Q("74.59111 mm")),
    Sketcher.Constraint("DistanceY", -1, 1, 14, 3, Q("271.105829 mm")),
    Sketcher.Constraint("DistanceX", -1, 1, 15, 3, Q("66.105829 mm")),
    Sketcher.Constraint("DistanceY", -1, 1, 15, 3, Q("279.59111 mm")),
    Sketcher.Constraint("DistanceX", -1, 1, 16, 3, Q("54.514719 mm")),
    Sketcher.Constraint("DistanceY", -1, 1, 16, 3, Q("276.485281 mm")),
    Sketcher.Constraint("DistanceX", -1, 1, 17, 3, Q("51.40889 mm")),
    Sketcher.Constraint("DistanceY", -1, 1, 17, 3, Q("264.894171 mm")),
    Sketcher.Constraint("DistanceX", -1, 1, 18, 3, Q("59.894171 mm")),
    Sketcher.Constraint("DistanceY", -1, 1, 18, 3, Q("256.40889 mm")),
])
pocket4 = body.newObject("PartDesign::Pocket", "Pocket003")
pocket4.Profile = sketch5
pocket4.Type = "ThroughAll"
pocket4.Reversed = True

doc.recompute()
